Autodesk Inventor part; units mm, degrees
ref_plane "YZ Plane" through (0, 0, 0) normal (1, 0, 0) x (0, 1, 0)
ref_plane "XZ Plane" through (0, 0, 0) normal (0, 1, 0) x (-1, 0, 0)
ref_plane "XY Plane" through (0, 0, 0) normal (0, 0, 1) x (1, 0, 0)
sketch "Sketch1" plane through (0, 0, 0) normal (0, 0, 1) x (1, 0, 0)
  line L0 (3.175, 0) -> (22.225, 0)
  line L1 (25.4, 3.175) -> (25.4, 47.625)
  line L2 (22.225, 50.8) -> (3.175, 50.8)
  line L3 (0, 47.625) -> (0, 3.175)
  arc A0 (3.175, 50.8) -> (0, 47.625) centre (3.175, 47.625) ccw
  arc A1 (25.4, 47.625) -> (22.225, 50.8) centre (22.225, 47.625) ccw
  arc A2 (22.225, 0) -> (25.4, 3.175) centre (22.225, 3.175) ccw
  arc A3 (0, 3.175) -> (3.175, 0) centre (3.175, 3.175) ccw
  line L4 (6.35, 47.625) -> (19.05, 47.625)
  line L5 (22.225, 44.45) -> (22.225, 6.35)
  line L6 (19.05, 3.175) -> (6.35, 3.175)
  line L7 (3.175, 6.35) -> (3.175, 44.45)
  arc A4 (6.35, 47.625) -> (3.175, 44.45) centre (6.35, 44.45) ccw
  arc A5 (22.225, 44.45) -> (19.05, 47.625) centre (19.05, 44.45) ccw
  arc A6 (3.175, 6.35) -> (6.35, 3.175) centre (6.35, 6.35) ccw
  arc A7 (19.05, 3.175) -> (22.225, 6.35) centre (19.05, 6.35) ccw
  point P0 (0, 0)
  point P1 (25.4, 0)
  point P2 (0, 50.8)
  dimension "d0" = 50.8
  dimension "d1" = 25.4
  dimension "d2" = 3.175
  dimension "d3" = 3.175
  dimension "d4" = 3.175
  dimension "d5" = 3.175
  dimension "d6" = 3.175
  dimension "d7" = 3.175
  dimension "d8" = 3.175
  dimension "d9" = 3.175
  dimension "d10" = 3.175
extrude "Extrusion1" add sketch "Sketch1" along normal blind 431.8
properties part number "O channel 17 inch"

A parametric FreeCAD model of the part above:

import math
import FreeCAD as App
import Part
import Sketcher
Q = App.Units.Quantity

doc = App.newDocument("Part")
params = doc.addObject("Spreadsheet::Sheet", "Params")
for row, (alias, value) in enumerate([
    ("sketch1_radius", "0.125 in"),
    ("pad1_length", "17 in"),
], start=1):
    params.set(f"A{row}", alias)
    params.set(f"B{row}", "=" + value)
    params.setAlias(f"B{row}", alias)

body = doc.addObject("PartDesign::Body", "Body")

# Sketch on XY plane
sketch1 = body.newObject("Sketcher::SketchObject", "Sketch")
sketch1.AttachmentSupport = (doc.getObject("XY_Plane"), [""])
sketch1.MapMode = "FlatFace"
sketch1.addGeometry([
    Part.ArcOfCircle(Part.Circle(App.Vector(3.2, 3.2, 0), App.Vector(0, 0, 1), 3.2), math.radians(180), math.radians(270)),  # 0
    Part.LineSegment(App.Vector(3.2, 0, 0), App.Vector(22.2, 0, 0)),  # 1
    Part.ArcOfCircle(Part.Circle(App.Vector(22.2, 3.2, 0), App.Vector(0, 0, 1), 3.2), math.radians(-90), math.radians(0)),  # 2
    Part.LineSegment(App.Vector(25.4, 3.2, 0), App.Vector(25.4, 47.6, 0)),  # 3
    Part.ArcOfCircle(Part.Circle(App.Vector(22.2, 47.6, 0), App.Vector(0, 0, 1), 3.2), math.radians(0), math.radians(90)),  # 4
    Part.LineSegment(App.Vector(22.2, 50.8, 0), App.Vector(3.2, 50.8, 0)),  # 5
    Part.ArcOfCircle(Part.Circle(App.Vector(3.2, 47.6, 0), App.Vector(0, 0, 1), 3.2), math.radians(90), math.radians(180)),  # 6
    Part.LineSegment(App.Vector(0, 47.6, 0), App.Vector(0, 3.2, 0)),  # 7
    Part.ArcOfCircle(Part.Circle(App.Vector(6.3, 44.5, 0), App.Vector(0, 0, 1), 3.2), math.radians(90), math.radians(180)),  # 8
    Part.LineSegment(App.Vector(6.3, 47.6, 0), App.Vector(19.1, 47.6, 0)),  # 9
    Part.ArcOfCircle(Part.Circle(App.Vector(19.1, 44.5, 0), App.Vector(0, 0, 1), 3.2), math.radians(0), math.radians(90)),  # 10
    Part.LineSegment(App.Vector(22.2, 44.5, 0), App.Vector(22.2, 6.3, 0)),  # 11
    Part.ArcOfCircle(Part.Circle(App.Vector(19.1, 6.3, 0), App.Vector(0, 0, 1), 3.2), math.radians(-90), math.radians(0)),  # 12
    Part.LineSegment(App.Vector(19.1, 3.2, 0), App.Vector(6.3, 3.2, 0)),  # 13
    Part.ArcOfCircle(Part.Circle(App.Vector(6.3, 6.3, 0), App.Vector(0, 0, 1), 3.2), math.radians(180), math.radians(270)),  # 14
    Part.LineSegment(App.Vector(3.2, 6.3, 0), App.Vector(3.2, 44.5, 0)),  # 15
], False)
sketch1.addConstraint([
    Sketcher.Constraint("Tangent", 0, 2, 1, 1),
    Sketcher.Constraint("Tangent", 1, 2, 2, 1),
    Sketcher.Constraint("Tangent", 2, 2, 3, 1),
    Sketcher.Constraint("Tangent", 3, 2, 4, 1),
    Sketcher.Constraint("Tangent", 4, 2, 5, 1),
    Sketcher.Constraint("Tangent", 5, 2, 6, 1),
    Sketcher.Constraint("Tangent", 6, 2, 7, 1),
    Sketcher.Constraint("Tangent", 7, 2, 0, 1),
    Sketcher.Constraint("Tangent", 8, 1, 9, 1),
    Sketcher.Constraint("Tangent", 9, 2, 10, 2),
    Sketcher.Constraint("Tangent", 10, 1, 11, 1),
    Sketcher.Constraint("Tangent", 11, 2, 12, 2),
    Sketcher.Constraint("Tangent", 12, 1, 13, 1),
    Sketcher.Constraint("Tangent", 13, 2, 14, 2),
    Sketcher.Constraint("Tangent", 14, 1, 15, 1),
    Sketcher.Constraint("Tangent", 15, 2, 8, 2),
    Sketcher.Constraint("Horizontal", 1),
    Sketcher.Constraint("Vertical", 3),
    Sketcher.Constraint("Horizontal", 5),
    Sketcher.Constraint("Vertical", 7),
    Sketcher.Constraint("Horizontal", 9),
    Sketcher.Constraint("Vertical", 11),
    Sketcher.Constraint("Horizontal", 13),
    Sketcher.Constraint("Vertical", 15),
    Sketcher.Constraint("Equal", 0, 2),
    Sketcher.Constraint("Equal", 2, 4),
    Sketcher.Constraint("Equal", 4, 6),
    Sketcher.Constraint("Equal", 6, 8),
    Sketcher.Constraint("Equal", 8, 10),
    Sketcher.Constraint("Equal", 10, 12),
    Sketcher.Constraint("Equal", 12, 14),
    Sketcher.Constraint("PointOnObject", 0, 2, -1),
    Sketcher.Constraint("PointOnObject", 6, 2, -2),
    Sketcher.Constraint("Horizontal", 6, 2, 8, 1),
    Sketcher.Constraint("Horizontal", 7, 2, 12, 1),
    Sketcher.Constraint("Vertical", 4, 2, 10, 1),
    Sketcher.Constraint("Vertical", 5, 2, 14, 1),
    Sketcher.Constraint("DistanceX", -1, 1, 2, 2, Q("1 in")),
    Sketcher.Constraint("DistanceY", -1, 1, 4, 2, Q("2 in")),
    Sketcher.Constraint("Radius", 0, Q("0.125 in")),
])
sketch1.setExpression("Constraints[39]", "Params.sketch1_radius")
pad1 = body.newObject("PartDesign::Pad", "Pad")
pad1.Profile = sketch1
pad1.setExpression("Length", "Params.pad1_length")

doc.recompute()
